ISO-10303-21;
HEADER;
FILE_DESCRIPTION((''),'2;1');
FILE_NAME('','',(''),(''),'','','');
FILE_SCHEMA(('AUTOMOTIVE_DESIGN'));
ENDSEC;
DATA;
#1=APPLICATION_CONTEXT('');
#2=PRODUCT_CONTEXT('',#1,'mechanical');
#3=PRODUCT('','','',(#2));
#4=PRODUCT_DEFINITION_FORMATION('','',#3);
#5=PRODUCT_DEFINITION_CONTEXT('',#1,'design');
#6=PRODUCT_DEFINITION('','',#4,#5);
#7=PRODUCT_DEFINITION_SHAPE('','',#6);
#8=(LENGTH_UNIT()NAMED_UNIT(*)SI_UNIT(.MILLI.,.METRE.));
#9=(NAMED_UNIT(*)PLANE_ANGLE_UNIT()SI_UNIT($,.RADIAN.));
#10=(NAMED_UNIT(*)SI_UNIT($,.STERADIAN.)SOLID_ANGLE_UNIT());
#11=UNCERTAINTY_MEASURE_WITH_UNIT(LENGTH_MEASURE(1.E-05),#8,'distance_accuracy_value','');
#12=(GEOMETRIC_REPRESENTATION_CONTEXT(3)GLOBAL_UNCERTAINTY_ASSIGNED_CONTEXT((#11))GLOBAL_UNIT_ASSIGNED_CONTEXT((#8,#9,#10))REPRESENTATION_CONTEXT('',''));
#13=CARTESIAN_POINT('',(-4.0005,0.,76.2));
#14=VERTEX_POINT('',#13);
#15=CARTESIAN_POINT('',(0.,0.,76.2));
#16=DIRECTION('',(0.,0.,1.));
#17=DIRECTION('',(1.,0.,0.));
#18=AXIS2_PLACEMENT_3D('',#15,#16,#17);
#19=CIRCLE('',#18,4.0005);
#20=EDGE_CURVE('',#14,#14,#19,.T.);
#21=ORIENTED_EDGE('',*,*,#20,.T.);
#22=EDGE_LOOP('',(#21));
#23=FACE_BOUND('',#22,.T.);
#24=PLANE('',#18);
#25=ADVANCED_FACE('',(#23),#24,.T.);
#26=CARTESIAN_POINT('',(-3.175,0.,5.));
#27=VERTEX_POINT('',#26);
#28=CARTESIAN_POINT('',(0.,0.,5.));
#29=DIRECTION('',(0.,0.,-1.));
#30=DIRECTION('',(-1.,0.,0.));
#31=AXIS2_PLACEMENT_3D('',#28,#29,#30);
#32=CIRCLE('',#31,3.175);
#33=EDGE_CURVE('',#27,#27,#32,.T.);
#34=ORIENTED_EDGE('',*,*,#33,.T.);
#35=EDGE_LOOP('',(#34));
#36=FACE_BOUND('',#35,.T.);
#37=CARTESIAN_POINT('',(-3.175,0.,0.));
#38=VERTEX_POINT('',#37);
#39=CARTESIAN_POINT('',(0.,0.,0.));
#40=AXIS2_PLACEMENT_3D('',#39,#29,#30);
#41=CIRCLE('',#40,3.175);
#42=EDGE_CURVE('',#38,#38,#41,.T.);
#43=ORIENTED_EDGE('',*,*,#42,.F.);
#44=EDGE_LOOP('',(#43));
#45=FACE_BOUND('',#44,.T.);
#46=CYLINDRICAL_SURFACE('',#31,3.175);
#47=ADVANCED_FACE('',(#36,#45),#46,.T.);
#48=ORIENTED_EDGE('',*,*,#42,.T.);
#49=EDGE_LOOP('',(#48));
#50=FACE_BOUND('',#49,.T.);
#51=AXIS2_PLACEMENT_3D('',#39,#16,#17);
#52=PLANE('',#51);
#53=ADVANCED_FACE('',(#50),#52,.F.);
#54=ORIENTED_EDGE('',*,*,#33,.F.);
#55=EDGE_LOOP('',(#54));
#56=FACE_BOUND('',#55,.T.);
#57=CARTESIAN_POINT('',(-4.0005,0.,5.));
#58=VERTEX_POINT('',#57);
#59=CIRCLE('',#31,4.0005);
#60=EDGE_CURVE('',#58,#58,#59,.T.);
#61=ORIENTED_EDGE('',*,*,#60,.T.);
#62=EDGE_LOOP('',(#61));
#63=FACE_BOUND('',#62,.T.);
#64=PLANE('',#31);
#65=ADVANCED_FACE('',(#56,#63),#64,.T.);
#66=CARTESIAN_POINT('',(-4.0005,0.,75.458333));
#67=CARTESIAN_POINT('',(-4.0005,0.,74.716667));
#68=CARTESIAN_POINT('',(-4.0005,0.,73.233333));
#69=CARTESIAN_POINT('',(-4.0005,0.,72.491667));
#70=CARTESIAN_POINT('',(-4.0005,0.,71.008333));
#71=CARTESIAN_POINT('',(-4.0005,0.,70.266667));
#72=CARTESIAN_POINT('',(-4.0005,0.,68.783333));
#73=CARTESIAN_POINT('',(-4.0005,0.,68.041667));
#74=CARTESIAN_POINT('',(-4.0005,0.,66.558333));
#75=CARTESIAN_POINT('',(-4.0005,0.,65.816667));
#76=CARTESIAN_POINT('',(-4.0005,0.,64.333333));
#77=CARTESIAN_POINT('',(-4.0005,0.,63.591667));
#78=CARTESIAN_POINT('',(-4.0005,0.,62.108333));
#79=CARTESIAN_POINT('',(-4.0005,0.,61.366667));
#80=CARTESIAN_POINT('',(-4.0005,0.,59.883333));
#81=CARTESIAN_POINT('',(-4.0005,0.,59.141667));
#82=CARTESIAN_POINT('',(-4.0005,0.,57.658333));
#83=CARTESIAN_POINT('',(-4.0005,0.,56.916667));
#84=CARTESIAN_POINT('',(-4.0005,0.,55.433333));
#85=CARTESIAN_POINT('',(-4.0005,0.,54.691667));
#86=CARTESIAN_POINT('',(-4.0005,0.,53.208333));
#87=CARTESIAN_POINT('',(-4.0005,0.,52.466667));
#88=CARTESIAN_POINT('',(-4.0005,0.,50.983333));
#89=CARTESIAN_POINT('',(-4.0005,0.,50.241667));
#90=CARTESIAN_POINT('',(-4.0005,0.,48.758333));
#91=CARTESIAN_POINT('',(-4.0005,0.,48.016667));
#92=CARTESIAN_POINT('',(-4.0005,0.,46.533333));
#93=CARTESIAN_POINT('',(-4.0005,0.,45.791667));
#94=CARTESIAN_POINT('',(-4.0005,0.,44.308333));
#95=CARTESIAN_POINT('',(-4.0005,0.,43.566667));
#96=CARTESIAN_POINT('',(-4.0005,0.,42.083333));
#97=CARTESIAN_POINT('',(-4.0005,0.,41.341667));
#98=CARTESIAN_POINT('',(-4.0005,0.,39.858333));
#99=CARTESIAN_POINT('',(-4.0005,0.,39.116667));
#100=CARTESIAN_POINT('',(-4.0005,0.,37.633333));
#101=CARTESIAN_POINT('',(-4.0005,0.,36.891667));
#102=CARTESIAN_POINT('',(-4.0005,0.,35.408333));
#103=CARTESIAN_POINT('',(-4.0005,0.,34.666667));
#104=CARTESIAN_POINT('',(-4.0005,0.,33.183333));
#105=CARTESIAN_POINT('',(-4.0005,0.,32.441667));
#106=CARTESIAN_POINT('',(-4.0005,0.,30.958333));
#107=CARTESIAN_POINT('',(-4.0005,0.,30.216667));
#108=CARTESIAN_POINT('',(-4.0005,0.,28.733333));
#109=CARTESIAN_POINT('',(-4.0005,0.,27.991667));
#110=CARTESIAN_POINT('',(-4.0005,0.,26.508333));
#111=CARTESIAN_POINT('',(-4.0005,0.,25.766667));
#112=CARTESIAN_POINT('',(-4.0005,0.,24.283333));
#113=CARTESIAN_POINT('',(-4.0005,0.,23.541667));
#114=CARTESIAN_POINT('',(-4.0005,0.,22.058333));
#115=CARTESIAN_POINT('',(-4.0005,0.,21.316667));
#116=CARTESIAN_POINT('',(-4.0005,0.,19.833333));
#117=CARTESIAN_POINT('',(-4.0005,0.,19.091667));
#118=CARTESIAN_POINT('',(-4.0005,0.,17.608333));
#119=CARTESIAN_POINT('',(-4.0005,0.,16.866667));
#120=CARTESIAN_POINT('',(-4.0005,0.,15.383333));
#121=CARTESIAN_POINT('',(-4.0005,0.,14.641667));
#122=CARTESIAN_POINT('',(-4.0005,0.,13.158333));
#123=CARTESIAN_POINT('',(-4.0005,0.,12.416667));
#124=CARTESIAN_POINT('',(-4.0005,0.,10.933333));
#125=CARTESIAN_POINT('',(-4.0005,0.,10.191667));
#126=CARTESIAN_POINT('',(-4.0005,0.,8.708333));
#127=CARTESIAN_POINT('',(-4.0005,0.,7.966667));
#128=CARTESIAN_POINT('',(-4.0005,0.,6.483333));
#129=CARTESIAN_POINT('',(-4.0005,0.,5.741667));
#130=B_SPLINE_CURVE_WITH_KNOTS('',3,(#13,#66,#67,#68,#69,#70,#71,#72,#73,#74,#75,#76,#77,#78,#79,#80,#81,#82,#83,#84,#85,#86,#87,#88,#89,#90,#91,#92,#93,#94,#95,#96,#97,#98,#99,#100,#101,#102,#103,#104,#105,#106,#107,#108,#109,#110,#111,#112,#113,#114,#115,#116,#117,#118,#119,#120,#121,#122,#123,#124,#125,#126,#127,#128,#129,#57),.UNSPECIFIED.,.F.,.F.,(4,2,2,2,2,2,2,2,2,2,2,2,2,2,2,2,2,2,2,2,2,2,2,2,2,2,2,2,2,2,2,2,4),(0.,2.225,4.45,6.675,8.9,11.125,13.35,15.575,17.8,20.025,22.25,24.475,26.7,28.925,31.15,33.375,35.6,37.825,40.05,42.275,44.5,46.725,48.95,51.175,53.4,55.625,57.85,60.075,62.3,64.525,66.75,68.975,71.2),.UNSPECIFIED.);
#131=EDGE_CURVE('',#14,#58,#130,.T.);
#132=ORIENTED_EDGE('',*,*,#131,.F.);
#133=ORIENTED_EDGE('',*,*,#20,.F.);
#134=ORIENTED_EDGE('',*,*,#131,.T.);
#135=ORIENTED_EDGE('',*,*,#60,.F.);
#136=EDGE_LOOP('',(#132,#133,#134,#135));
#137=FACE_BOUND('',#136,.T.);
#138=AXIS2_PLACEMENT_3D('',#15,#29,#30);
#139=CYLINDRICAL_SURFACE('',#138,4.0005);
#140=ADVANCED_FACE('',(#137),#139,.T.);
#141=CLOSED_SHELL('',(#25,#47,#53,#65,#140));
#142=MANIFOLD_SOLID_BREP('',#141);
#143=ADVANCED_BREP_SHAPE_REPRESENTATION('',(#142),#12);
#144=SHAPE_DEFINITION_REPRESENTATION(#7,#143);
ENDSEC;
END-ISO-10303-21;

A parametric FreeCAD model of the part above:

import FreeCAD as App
import Part
import Sketcher
Q = App.Units.Quantity

doc = App.newDocument("Part")
body = doc.addObject("PartDesign::Body", "Body")

sketch1 = doc.addObject("Sketcher::SketchObject", "Sketch")
body.addObject(sketch1)
sketch1.AttachmentSupport = (doc.XY_Plane, [""])
sketch1.MapMode = "FlatFace"
sketch1.addGeometry(Part.Circle(App.Vector(0, 0, 0), App.Vector(0, 0, 1), 4), False)
sketch1.addConstraint([
    Sketcher.Constraint("Coincident", 0, 3, -1, 1),
    Sketcher.Constraint("Diameter", 0, Q("0.315 in")),
])
pad1 = doc.addObject("PartDesign::Pad", "Pad")
body.addObject(pad1)
pad1.Profile = sketch1
pad1.Length = Q("3 in")

sketch2 = doc.addObject("Sketcher::SketchObject", "Sketch001")
body.addObject(sketch2)
sketch2.AttachmentSupport = (doc.XY_Plane, [""])
sketch2.MapMode = "FlatFace"
sketch2.addGeometry([
    Part.Circle(App.Vector(0, 0, 0), App.Vector(0, 0, 1), 6.5),
    Part.Circle(App.Vector(0, 0, 0), App.Vector(0, 0, 1), 3.2),
], False)
sketch2.addConstraint([
    Sketcher.Constraint("Coincident", 0, 3, -1, 1),
    Sketcher.Constraint("Coincident", 1, 3, -1, 1),
    Sketcher.Constraint("Diameter", 1, Q("0.25 in")),
    Sketcher.Constraint("Diameter", 0, 12.933832),
])
pocket1 = doc.addObject("PartDesign::Pocket", "Pocket")
body.addObject(pocket1)
pocket1.Profile = sketch2
pocket1.Length = 5
pocket1.Reversed = True

doc.recompute()
